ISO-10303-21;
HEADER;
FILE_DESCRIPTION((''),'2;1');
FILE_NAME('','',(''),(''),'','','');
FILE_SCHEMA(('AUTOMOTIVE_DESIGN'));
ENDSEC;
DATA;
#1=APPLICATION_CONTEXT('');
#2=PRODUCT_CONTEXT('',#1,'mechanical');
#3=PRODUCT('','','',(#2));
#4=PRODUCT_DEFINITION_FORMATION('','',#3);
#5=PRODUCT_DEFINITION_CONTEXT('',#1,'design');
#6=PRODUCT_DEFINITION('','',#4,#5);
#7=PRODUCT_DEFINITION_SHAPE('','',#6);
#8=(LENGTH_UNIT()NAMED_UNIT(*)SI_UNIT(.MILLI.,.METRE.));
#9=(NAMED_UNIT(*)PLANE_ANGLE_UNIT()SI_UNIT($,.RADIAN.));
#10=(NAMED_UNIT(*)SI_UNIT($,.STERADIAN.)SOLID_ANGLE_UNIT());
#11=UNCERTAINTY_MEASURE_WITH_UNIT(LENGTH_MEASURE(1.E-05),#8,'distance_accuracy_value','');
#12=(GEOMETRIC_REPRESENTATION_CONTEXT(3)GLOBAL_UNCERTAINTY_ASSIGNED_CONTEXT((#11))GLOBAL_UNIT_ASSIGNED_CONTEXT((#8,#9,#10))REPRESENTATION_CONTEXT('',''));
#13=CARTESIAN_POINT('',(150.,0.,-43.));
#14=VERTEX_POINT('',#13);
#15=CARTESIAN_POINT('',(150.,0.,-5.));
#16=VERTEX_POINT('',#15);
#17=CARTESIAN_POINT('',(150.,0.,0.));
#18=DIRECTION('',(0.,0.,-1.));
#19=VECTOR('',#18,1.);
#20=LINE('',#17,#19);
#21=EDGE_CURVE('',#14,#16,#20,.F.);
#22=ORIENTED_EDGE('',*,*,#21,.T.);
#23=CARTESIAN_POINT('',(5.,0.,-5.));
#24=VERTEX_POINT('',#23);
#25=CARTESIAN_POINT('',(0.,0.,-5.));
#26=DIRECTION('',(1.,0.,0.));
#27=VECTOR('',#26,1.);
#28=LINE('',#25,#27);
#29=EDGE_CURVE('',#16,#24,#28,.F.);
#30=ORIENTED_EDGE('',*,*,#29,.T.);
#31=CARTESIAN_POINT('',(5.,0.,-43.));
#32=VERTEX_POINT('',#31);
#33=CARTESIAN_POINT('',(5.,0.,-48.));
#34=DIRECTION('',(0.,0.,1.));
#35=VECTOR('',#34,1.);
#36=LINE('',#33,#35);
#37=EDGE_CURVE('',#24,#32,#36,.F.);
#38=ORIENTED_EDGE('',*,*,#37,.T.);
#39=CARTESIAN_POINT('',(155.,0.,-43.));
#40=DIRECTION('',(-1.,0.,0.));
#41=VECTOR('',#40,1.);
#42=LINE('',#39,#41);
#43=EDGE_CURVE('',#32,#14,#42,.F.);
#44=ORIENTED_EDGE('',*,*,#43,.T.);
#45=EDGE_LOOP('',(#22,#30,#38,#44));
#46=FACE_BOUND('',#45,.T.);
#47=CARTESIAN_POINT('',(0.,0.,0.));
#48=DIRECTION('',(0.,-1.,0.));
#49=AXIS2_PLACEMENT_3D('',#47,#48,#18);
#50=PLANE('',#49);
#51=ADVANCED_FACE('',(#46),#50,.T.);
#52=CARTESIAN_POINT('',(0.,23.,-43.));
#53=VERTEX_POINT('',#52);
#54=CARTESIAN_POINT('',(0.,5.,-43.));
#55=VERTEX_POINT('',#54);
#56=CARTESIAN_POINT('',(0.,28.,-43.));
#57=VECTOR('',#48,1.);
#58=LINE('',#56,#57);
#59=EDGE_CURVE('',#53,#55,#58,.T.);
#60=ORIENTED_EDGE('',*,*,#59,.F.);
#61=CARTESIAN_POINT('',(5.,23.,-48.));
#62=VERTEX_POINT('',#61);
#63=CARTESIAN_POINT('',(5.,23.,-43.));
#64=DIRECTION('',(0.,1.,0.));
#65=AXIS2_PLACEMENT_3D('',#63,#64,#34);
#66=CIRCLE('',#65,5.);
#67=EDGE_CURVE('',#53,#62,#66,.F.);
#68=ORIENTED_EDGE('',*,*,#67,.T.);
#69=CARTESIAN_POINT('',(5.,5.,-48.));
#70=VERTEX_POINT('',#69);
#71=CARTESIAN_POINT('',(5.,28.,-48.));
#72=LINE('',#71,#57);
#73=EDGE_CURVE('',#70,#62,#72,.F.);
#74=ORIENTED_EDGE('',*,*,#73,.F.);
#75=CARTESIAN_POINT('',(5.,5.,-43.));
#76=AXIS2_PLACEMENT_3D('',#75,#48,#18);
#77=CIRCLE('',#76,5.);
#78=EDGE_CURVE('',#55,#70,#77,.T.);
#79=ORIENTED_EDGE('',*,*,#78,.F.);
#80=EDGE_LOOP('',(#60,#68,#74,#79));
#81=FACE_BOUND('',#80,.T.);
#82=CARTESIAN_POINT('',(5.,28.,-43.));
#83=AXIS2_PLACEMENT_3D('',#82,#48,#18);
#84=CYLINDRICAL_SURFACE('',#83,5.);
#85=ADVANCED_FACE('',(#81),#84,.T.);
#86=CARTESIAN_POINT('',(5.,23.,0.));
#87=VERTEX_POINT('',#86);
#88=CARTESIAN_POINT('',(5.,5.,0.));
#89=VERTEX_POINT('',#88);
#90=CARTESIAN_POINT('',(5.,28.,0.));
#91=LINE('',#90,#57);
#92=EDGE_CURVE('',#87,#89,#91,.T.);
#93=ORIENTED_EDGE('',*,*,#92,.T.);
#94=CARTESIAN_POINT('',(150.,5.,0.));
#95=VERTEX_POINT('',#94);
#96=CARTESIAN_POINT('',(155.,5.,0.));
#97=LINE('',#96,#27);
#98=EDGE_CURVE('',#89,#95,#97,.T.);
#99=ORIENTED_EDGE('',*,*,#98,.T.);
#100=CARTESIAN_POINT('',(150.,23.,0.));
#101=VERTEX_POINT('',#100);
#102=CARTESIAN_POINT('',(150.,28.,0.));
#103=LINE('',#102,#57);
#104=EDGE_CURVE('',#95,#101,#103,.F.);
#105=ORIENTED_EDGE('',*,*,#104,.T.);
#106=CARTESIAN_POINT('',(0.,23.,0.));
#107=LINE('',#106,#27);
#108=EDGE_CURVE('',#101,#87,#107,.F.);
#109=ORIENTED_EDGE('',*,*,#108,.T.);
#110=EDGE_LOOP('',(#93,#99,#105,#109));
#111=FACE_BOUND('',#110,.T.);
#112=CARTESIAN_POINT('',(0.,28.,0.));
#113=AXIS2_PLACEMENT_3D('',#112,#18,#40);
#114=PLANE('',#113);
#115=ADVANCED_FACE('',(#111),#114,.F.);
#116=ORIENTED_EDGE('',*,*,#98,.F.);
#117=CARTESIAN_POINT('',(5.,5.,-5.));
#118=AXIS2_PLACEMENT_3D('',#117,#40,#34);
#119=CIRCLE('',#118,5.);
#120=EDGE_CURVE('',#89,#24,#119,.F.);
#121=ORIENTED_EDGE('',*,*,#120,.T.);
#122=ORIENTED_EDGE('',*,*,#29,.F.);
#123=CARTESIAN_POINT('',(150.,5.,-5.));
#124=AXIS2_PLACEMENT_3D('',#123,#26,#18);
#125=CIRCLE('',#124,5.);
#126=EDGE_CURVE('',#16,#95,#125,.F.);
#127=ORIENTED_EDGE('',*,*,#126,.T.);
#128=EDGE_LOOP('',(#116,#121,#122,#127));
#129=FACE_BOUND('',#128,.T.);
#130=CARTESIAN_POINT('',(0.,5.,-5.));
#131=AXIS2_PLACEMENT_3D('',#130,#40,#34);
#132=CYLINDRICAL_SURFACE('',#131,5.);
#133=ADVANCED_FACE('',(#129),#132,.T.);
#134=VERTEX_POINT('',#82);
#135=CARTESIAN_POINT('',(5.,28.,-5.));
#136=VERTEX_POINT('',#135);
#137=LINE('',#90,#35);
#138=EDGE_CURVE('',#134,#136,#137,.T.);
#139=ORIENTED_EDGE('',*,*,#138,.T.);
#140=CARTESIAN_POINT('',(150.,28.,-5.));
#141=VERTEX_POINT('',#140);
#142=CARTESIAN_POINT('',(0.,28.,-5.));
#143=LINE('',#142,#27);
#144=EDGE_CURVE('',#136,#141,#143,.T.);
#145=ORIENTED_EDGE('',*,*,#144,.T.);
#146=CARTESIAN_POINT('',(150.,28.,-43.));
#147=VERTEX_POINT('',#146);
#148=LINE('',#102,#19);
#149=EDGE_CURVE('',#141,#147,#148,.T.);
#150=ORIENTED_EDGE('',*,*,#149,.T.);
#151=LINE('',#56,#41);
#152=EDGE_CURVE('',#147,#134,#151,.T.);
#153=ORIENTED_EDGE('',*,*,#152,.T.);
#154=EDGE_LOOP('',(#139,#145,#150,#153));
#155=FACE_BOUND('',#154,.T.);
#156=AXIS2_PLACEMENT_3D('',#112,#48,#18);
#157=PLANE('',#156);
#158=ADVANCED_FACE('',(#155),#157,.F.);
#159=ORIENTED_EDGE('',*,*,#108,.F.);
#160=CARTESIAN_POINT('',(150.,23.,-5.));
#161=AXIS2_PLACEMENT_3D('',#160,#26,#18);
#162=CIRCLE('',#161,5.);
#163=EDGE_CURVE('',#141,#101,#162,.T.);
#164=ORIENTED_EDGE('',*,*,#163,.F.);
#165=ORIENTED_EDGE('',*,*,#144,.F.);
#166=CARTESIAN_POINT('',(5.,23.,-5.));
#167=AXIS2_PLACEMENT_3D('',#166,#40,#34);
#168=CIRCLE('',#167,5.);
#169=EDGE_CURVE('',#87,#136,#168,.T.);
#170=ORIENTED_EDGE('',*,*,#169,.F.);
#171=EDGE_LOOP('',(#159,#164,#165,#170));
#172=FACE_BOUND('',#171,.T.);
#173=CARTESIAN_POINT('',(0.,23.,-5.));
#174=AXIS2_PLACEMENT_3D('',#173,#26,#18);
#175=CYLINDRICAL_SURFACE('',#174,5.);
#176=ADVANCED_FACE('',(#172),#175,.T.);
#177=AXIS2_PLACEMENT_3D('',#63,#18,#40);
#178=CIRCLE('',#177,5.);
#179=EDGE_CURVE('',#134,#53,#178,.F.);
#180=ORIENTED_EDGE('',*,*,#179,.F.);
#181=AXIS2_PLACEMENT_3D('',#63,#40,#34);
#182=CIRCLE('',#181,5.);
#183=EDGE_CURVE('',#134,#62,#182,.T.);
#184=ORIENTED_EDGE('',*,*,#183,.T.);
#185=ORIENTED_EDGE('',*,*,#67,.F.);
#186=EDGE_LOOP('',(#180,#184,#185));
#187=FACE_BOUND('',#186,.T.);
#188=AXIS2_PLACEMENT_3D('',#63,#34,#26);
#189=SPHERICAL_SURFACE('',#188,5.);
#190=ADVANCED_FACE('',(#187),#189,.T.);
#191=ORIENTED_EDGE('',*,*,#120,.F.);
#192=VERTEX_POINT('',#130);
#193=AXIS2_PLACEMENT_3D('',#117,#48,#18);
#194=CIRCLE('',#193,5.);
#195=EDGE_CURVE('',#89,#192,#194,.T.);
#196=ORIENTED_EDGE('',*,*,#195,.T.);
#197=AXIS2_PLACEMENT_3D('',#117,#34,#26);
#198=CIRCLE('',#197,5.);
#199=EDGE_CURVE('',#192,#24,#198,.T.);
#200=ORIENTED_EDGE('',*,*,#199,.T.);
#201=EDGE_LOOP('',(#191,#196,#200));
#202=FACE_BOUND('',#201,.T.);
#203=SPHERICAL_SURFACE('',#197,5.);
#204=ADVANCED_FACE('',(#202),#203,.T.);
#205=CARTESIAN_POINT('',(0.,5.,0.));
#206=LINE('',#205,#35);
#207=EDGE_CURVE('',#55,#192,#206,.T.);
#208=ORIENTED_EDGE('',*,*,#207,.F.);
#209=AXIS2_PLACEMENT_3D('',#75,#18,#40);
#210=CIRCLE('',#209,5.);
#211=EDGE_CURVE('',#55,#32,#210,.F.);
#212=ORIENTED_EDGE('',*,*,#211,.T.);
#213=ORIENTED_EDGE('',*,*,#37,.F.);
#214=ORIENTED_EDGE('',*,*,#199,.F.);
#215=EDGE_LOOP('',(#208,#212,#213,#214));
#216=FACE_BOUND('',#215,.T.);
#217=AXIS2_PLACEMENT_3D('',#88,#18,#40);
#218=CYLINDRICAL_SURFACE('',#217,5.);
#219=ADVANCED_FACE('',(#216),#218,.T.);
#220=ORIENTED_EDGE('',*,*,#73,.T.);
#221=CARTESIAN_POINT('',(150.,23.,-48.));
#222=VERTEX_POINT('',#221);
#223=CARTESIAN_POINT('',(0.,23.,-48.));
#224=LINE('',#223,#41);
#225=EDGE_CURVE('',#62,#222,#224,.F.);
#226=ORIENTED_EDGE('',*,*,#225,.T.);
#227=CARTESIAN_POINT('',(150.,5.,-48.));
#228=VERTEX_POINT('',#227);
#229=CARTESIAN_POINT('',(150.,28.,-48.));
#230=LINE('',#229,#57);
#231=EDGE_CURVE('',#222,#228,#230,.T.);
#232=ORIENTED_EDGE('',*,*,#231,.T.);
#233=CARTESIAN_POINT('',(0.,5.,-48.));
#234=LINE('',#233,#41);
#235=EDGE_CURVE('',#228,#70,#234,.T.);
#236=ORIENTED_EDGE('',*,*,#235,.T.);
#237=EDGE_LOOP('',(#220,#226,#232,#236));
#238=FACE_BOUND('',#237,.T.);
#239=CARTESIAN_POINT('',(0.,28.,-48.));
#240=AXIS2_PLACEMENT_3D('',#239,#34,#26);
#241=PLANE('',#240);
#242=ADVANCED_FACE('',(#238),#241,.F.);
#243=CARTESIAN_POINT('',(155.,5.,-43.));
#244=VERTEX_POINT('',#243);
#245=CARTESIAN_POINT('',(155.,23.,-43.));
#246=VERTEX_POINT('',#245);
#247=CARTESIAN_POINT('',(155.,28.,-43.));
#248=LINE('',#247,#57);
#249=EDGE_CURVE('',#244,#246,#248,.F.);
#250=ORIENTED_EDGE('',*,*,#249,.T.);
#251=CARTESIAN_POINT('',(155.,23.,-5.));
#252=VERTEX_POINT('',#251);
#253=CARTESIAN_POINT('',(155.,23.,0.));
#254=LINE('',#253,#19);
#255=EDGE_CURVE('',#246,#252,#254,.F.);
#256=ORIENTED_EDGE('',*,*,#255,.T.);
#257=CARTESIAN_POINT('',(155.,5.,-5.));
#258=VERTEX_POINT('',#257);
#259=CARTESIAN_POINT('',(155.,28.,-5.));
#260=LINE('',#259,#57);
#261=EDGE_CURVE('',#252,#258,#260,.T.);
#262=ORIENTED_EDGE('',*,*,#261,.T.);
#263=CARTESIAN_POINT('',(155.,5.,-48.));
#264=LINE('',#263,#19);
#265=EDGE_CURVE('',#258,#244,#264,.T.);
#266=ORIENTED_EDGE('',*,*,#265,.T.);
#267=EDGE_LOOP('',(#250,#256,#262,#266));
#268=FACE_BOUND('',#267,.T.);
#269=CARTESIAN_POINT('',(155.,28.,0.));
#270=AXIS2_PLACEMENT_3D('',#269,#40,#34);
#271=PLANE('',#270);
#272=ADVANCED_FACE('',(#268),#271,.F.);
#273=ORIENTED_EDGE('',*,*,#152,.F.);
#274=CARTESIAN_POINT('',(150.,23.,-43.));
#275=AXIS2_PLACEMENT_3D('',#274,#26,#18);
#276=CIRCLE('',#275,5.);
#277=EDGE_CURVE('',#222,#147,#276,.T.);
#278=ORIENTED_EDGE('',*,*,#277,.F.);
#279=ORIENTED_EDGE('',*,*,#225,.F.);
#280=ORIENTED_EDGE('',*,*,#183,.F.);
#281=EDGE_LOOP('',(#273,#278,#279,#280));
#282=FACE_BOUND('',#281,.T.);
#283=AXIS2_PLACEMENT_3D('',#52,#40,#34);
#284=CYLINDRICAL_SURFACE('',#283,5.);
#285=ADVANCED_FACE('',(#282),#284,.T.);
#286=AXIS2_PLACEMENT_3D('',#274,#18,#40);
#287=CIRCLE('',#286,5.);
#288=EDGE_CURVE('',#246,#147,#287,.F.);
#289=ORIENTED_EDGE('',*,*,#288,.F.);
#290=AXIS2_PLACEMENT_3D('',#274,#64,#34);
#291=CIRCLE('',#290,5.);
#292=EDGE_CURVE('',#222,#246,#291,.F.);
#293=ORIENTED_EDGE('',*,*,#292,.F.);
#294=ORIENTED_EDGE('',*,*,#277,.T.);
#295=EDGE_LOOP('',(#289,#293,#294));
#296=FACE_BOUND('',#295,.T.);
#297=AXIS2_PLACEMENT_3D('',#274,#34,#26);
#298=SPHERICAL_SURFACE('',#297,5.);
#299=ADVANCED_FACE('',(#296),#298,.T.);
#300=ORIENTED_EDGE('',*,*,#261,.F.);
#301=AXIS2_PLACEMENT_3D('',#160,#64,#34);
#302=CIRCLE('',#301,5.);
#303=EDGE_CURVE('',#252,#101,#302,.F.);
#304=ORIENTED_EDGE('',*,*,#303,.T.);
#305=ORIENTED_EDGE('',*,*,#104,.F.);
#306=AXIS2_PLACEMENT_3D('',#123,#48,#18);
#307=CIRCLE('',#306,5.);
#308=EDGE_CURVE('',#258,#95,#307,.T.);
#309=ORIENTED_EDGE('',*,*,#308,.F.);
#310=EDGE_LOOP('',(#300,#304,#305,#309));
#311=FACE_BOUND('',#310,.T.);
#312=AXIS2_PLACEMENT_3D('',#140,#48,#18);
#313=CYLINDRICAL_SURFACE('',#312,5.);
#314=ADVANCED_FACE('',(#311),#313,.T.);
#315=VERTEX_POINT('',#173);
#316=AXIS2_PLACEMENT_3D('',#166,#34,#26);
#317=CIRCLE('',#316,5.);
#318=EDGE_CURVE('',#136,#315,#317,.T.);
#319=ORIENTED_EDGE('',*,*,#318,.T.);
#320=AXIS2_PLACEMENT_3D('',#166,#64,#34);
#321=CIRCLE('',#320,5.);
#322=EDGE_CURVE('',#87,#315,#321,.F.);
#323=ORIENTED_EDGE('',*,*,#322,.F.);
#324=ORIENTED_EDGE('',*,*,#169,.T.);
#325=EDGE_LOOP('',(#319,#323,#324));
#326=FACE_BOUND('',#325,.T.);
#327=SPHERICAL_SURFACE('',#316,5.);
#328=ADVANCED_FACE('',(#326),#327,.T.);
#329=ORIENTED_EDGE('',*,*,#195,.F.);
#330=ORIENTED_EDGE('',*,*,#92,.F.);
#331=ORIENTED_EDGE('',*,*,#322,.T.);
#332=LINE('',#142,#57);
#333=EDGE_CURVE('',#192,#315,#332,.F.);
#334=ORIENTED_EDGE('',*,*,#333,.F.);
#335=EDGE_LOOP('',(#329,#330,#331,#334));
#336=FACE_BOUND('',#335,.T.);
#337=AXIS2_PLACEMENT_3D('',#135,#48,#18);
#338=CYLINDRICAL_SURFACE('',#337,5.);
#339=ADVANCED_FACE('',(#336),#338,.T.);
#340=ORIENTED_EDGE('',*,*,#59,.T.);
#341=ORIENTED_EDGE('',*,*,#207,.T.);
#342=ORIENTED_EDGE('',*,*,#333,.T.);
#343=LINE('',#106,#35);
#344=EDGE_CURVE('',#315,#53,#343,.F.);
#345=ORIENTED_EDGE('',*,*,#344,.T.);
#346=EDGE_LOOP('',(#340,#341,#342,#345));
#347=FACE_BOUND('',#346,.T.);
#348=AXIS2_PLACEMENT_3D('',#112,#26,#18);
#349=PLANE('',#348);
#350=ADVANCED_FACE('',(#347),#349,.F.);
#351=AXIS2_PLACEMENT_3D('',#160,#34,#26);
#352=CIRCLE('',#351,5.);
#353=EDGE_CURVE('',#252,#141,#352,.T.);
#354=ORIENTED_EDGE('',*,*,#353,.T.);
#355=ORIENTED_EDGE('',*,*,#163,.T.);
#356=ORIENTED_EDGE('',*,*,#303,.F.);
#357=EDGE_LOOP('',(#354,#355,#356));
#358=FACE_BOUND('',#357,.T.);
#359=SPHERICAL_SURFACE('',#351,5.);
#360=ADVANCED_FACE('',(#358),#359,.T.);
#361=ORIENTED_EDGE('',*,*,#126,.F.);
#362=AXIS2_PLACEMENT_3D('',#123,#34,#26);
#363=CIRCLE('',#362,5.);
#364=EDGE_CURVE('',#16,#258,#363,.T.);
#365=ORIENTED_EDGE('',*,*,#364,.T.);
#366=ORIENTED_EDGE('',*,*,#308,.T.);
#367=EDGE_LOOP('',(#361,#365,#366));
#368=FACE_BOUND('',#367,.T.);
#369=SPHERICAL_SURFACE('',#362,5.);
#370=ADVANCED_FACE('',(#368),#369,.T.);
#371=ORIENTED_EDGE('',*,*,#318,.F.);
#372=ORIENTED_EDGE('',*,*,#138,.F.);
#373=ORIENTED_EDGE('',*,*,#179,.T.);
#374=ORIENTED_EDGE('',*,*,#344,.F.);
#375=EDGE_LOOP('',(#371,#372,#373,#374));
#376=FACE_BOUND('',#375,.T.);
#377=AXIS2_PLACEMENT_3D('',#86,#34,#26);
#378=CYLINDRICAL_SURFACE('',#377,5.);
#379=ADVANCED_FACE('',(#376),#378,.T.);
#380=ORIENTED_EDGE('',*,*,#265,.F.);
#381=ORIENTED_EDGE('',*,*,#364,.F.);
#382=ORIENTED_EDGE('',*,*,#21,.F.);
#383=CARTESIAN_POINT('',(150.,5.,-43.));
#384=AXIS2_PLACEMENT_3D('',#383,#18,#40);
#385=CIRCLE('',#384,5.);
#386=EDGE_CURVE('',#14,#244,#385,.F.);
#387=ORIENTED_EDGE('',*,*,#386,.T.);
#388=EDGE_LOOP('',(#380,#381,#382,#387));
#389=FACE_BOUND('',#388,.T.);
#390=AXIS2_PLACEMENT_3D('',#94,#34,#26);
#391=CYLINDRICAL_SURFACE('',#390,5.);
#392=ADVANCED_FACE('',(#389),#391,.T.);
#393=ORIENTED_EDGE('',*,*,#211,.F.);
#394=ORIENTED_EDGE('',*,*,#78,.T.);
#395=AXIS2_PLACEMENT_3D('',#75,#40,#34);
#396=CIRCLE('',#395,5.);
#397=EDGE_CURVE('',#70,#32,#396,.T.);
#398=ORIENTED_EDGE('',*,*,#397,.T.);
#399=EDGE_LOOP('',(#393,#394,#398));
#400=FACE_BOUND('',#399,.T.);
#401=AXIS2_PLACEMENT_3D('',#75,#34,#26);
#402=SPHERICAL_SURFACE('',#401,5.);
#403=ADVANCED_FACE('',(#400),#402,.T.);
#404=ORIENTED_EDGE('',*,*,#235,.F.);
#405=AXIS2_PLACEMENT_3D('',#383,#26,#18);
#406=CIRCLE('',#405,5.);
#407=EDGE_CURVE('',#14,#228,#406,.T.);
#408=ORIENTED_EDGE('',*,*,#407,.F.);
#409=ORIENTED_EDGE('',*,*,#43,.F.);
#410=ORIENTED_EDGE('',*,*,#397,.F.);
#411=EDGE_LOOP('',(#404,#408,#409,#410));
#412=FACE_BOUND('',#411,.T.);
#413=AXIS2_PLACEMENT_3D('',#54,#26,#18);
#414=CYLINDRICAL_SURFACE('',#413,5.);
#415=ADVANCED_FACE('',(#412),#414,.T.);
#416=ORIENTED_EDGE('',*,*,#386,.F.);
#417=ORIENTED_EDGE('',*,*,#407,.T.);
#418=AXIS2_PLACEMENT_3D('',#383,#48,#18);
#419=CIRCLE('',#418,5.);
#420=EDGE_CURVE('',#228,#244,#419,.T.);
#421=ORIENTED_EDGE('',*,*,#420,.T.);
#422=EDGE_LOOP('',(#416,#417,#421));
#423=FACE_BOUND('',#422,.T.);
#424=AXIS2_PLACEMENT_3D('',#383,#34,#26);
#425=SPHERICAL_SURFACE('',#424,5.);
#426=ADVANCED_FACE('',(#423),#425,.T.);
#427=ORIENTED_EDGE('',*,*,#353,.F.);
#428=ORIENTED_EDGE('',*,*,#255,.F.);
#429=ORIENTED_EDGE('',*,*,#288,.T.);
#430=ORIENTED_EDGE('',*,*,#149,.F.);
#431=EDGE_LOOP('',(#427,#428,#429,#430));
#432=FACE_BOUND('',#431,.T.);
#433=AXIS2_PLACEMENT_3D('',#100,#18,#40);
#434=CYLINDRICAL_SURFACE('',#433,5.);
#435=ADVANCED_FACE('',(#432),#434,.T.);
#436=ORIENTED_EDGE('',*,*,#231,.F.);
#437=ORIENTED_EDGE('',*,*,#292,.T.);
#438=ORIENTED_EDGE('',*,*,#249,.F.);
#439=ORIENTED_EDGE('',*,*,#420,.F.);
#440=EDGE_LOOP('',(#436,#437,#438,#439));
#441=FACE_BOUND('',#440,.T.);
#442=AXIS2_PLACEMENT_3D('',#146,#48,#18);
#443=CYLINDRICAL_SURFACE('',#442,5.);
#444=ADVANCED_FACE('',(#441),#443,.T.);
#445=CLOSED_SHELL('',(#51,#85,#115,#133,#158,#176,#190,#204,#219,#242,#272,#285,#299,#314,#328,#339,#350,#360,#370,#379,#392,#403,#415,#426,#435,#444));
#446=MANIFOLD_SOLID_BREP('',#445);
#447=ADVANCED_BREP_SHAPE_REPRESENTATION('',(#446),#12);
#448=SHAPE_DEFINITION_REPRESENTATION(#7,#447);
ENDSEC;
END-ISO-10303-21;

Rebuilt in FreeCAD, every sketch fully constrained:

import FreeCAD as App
import Part
import Sketcher
Q = App.Units.Quantity


def add_polygon(sketch, points):
    """Adds a closed chain of lines whose ends are joined by coincident constraints."""
    first, n = sketch.GeometryCount, len(points)
    for a, b in zip(points, points[1:] + points[:1]):
        sketch.addGeometry(Part.LineSegment(App.Vector(*a, 0), App.Vector(*b, 0)), False)
    for i in range(n):
        sketch.addConstraint(Sketcher.Constraint("Coincident", first + i, 2, first + (i + 1) % n, 1))

doc = App.newDocument("Part")
params = doc.addObject("Spreadsheet::Sheet", "Params")
for row, (alias, value) in enumerate([
    ("sketch1_width", "155 mm"),
    ("sketch1_height", "48 mm"),
    ("pad1_length", "28 mm"),
    ("fillet_radius", "5 mm"),
], start=1):
    params.set(f"A{row}", alias)
    params.set(f"B{row}", "=" + value)
    params.setAlias(f"B{row}", alias)

body = doc.addObject("PartDesign::Body", "Body")

sketch1 = body.newObject("Sketcher::SketchObject", "Sketch")
sketch1.AttachmentSupport = (doc.getObject("XZ_Plane"), [""])
sketch1.MapMode = "FlatFace"
add_polygon(sketch1, [(0, -48), (0, 0), (155, 0), (155, -48)])
sketch1.addConstraint(Sketcher.Constraint("Vertical", 0))
sketch1.addConstraint(Sketcher.Constraint("Horizontal", 1))
sketch1.addConstraint(Sketcher.Constraint("Vertical", 2))
sketch1.addConstraint(Sketcher.Constraint("Horizontal", 3))
sketch1.addConstraint(Sketcher.Constraint("Coincident", 0, 2, -1, 1))
sketch1.addConstraint(Sketcher.Constraint("DistanceX", 1, 1, 1, 2, Q("155 mm")))
sketch1.addConstraint(Sketcher.Constraint("DistanceY", 0, 1, 0, 2, Q("48 mm")))
sketch1.setExpression("Constraints[9]", "Params.sketch1_width")
sketch1.setExpression("Constraints[10]", "Params.sketch1_height")
pad1 = body.newObject("PartDesign::Pad", "Pad")
pad1.Profile = sketch1
pad1.setExpression("Length", "Params.pad1_length")
pad1.Reversed = True
doc.recompute()

fillet = body.newObject("PartDesign::Fillet", "Fillet")
fillet.Base = (pad1, ["Edge1"])
fillet.UseAllEdges = True
fillet.setExpression("Radius", "Params.fillet_radius")

doc.recompute()
